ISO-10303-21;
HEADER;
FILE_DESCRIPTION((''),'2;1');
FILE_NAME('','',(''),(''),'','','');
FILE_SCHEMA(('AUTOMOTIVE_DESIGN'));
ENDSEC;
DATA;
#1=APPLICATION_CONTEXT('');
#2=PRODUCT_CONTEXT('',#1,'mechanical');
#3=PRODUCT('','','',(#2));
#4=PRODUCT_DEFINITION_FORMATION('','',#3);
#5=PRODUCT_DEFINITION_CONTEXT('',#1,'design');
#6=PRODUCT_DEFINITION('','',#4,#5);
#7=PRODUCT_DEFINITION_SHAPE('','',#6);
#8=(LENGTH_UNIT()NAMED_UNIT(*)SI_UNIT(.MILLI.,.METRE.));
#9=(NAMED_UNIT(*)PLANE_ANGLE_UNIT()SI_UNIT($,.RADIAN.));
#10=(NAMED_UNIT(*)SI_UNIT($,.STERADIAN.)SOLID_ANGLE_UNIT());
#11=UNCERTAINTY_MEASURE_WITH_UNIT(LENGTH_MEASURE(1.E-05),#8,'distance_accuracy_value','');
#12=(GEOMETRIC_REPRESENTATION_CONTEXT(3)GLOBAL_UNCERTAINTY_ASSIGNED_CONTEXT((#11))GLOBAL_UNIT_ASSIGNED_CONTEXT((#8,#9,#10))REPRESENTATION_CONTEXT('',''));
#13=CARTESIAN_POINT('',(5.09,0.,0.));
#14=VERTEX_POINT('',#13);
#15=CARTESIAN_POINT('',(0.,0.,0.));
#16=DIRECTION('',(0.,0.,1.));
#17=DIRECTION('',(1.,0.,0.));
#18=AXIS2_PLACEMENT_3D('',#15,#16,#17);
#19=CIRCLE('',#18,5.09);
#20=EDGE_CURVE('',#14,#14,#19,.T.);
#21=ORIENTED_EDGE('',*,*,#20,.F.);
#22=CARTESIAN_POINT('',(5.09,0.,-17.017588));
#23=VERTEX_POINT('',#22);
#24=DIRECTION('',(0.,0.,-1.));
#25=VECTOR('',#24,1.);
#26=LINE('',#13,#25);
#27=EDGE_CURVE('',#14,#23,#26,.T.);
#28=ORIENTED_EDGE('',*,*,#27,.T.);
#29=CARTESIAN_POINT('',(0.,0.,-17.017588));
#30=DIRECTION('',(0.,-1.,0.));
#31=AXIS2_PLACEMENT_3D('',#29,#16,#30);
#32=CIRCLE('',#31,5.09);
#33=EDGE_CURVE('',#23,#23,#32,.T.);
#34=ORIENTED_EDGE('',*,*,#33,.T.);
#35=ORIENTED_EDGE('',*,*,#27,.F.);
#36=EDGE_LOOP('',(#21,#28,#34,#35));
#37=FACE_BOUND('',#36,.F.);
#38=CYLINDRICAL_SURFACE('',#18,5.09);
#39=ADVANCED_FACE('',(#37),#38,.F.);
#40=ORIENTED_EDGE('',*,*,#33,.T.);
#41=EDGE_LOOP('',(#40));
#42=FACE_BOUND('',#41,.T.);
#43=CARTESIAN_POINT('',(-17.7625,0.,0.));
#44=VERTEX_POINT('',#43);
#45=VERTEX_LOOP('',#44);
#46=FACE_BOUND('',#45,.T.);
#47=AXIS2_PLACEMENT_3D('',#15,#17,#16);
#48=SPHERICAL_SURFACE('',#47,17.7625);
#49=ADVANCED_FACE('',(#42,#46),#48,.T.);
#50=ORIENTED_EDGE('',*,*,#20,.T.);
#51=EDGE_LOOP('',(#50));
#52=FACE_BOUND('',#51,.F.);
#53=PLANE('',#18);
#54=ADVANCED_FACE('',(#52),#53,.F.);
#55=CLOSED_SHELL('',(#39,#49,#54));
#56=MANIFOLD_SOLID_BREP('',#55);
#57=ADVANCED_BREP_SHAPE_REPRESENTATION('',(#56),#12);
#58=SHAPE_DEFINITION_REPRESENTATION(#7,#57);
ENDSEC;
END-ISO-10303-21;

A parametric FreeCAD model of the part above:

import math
import FreeCAD as App
import Part
import Sketcher

doc = App.newDocument("Part")
body = doc.addObject("PartDesign::Body", "Body")

sketch1 = doc.addObject("Sketcher::SketchObject", "Sketch")
body.addObject(sketch1)
sketch1.AttachmentSupport = (doc.XZ_Plane, [""])
sketch1.MapMode = "FlatFace"
sketch1.addGeometry([
    Part.ArcOfCircle(Part.Circle(App.Vector(0, 0, 0), App.Vector(0, 0, 1), 18), math.radians(0), math.radians(180)),
    Part.LineSegment(App.Vector(-18, 0, 0), App.Vector(18, 0, 0)),
], False)
sketch1.addConstraint([
    Sketcher.Constraint("Coincident", 0, 1, 1, 2),
    Sketcher.Constraint("Coincident", 1, 1, 0, 2),
    Sketcher.Constraint("Horizontal", 1),
    Sketcher.Constraint("Coincident", 0, 3, -1, 1),
    Sketcher.Constraint("PointOnObject", 0, 1, -1),
    Sketcher.Constraint("Radius", 0, 17.7625),
])
revolution = doc.addObject("PartDesign::Revolution", "Revolution")
body.addObject(revolution)
revolution.Profile = sketch1
revolution.ReferenceAxis = (sketch1, ["H_Axis"])
revolution.Angle = 360

sketch2 = doc.addObject("Sketcher::SketchObject", "Sketch001")
body.addObject(sketch2)
sketch2.AttachmentSupport = (doc.XY_Plane, [""])
sketch2.MapMode = "FlatFace"
sketch2.addGeometry(Part.Circle(App.Vector(0, 0, 0), App.Vector(0, 0, 1), 5), False)
sketch2.addConstraint([
    Sketcher.Constraint("Coincident", 0, 3, -1, 1),
    Sketcher.Constraint("Diameter", 0, 10.18),
])
pocket1 = doc.addObject("PartDesign::Pocket", "Pocket")
body.addObject(pocket1)
pocket1.Profile = sketch2
pocket1.Length = 39.6168

doc.recompute()
